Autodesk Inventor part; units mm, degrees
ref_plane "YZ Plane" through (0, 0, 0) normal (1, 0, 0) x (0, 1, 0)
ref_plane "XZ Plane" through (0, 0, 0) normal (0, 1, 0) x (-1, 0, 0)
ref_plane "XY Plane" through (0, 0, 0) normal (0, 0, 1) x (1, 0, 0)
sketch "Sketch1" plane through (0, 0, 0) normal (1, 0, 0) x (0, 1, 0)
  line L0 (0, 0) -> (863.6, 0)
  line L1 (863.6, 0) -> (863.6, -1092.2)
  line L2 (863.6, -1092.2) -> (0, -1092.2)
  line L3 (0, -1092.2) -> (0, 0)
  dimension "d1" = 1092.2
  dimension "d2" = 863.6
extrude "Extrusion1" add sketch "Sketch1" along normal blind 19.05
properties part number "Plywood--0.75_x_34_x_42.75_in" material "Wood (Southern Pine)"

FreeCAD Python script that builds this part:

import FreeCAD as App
import Part
import Sketcher

V = App.Vector
Q = App.Units.Quantity

doc = App.newDocument("Part")
body = doc.addObject("PartDesign::Body", "Body")

# Sketch on YZ plane
sketch1 = doc.addObject("Sketcher::SketchObject", "Sketch")
body.addObject(sketch1)
sketch1.AttachmentSupport = (doc.YZ_Plane, [""])
sketch1.MapMode = "FlatFace"
sketch1.addGeometry([
    Part.LineSegment(V(864, 0, 0), V(0, 0, 0)),
    Part.LineSegment(V(0, 0, 0), V(0, -1092, 0)),
    Part.LineSegment(V(0, -1092, 0), V(864, -1092, 0)),
    Part.LineSegment(V(864, -1092, 0), V(864, 0, 0)),
], False)
sketch1.addConstraint([
    Sketcher.Constraint("Coincident", 0, 2, 1, 1),
    Sketcher.Constraint("Coincident", 1, 2, 2, 1),
    Sketcher.Constraint("Coincident", 2, 2, 3, 1),
    Sketcher.Constraint("Coincident", 3, 2, 0, 1),
    Sketcher.Constraint("Horizontal", 0),
    Sketcher.Constraint("Vertical", 1),
    Sketcher.Constraint("Horizontal", 2),
    Sketcher.Constraint("Vertical", 3),
    Sketcher.Constraint("Coincident", 0, 2, -1, 1),
    Sketcher.Constraint("DistanceX", 0, 2, 0, 1, Q("34 in")),
    Sketcher.Constraint("DistanceY", 1, 2, 1, 1, Q("43 in")),
])
pad1 = doc.addObject("PartDesign::Pad", "Pad")
body.addObject(pad1)
pad1.Profile = sketch1
pad1.Length = Q("0.75 in")

doc.recompute()
